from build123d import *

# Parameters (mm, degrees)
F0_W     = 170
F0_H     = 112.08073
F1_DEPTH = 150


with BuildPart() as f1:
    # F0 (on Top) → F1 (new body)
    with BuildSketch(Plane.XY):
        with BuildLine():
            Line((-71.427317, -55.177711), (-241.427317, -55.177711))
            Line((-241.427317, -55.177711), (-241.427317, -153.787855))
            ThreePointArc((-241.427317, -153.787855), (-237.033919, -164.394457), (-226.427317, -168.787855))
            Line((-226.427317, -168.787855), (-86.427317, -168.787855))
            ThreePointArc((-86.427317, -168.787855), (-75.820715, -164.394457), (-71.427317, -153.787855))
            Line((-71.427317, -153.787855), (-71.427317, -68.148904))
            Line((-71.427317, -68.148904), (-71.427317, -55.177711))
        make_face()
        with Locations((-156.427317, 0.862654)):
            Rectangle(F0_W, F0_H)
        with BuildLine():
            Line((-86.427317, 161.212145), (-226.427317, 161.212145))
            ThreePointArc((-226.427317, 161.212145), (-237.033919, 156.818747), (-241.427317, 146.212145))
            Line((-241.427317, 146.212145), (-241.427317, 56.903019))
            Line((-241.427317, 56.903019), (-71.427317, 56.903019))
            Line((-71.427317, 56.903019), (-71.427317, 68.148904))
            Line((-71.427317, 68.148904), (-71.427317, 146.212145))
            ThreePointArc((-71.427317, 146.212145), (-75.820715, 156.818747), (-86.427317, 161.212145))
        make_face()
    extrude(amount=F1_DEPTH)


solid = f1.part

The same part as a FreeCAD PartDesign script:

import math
import FreeCAD as App
import Part
import Sketcher

V = App.Vector

doc = App.newDocument("Part")
body = doc.addObject("PartDesign::Body", "Body")

sketch1 = body.newObject("Sketcher::SketchObject", "Sketch")
sketch1.AttachmentSupport = (doc.getObject("XY_Plane"), [""])
sketch1.MapMode = "FlatFace"
sketch1.addGeometry([
    Part.ArcOfCircle(Part.Circle(V(-226.427318, -153.787856, 0), V(0, 0, 1), 14.999999), math.radians(179.999996), math.radians(270.000004)),
    Part.LineSegment(V(-226.427317, -168.787855, 0), V(-86.427317, -168.787855, 0)),
    Part.ArcOfCircle(Part.Circle(V(-86.427316, -153.787856, 0), V(0, 0, 1), 14.999999), math.radians(-90.000004), math.radians(0.000004)),
    Part.LineSegment(V(-71.427317, -153.787855, 0), V(-71.427317, 146.212145, 0)),
    Part.ArcOfCircle(Part.Circle(V(-86.427316, 146.212146, 0), V(0, 0, 1), 14.999999), math.radians(-0.000004), math.radians(90.000004)),
    Part.LineSegment(V(-86.427317, 161.212145, 0), V(-226.427317, 161.212145, 0)),
    Part.ArcOfCircle(Part.Circle(V(-226.427318, 146.212146, 0), V(0, 0, 1), 14.999999), math.radians(89.999996), math.radians(180.000004)),
    Part.LineSegment(V(-241.427317, 146.212145, 0), V(-241.427317, -153.787855, 0)),
], False)
sketch1.addConstraint([
    Sketcher.Constraint("Tangent", 0, 2, 1, 1),
    Sketcher.Constraint("Tangent", 1, 2, 2, 1),
    Sketcher.Constraint("Tangent", 2, 2, 3, 1),
    Sketcher.Constraint("Tangent", 3, 2, 4, 1),
    Sketcher.Constraint("Tangent", 4, 2, 5, 1),
    Sketcher.Constraint("Tangent", 5, 2, 6, 1),
    Sketcher.Constraint("Tangent", 6, 2, 7, 1),
    Sketcher.Constraint("Tangent", 7, 2, 0, 1),
    Sketcher.Constraint("Horizontal", 1),
    Sketcher.Constraint("Vertical", 3),
    Sketcher.Constraint("Horizontal", 5),
    Sketcher.Constraint("Vertical", 7),
    Sketcher.Constraint("Equal", 0, 2),
    Sketcher.Constraint("Equal", 2, 4),
    Sketcher.Constraint("Equal", 4, 6),
    Sketcher.Constraint("Radius", 0, 14.999999),
    Sketcher.Constraint("DistanceX", 1, 1, 1, 2, 140.0),
    Sketcher.Constraint("DistanceY", 3, 1, 3, 2, 300.0),
    Sketcher.Constraint("DistanceX", 0, 3, -1, 1, 226.427318),
    Sketcher.Constraint("DistanceY", 0, 3, -1, 1, 153.787856),
])
pad1 = body.newObject("PartDesign::Pad", "Pad")
pad1.Profile = sketch1
pad1.Length = 150

doc.recompute()
